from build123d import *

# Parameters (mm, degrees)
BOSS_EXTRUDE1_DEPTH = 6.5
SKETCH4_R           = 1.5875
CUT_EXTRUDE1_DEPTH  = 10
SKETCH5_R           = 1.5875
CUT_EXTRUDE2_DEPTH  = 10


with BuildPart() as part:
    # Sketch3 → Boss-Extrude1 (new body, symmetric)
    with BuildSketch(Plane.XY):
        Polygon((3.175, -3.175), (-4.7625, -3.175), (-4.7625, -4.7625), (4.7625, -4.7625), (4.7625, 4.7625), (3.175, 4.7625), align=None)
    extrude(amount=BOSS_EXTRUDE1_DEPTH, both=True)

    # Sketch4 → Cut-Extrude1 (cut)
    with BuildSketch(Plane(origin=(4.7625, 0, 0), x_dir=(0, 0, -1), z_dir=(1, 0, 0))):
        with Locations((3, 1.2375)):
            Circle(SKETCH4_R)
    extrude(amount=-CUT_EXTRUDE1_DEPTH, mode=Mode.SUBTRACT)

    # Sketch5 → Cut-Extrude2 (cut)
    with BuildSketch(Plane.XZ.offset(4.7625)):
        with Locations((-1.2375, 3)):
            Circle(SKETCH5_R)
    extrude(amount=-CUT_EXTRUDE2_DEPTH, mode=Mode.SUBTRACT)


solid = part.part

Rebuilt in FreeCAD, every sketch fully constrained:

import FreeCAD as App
import Part
import Sketcher
Q = App.Units.Quantity


def add_polygon(sketch, points):
    """Adds a closed chain of lines whose ends are joined by coincident constraints."""
    first, n = sketch.GeometryCount, len(points)
    for a, b in zip(points, points[1:] + points[:1]):
        sketch.addGeometry(Part.LineSegment(App.Vector(*a, 0), App.Vector(*b, 0)), False)
    for i in range(n):
        sketch.addConstraint(Sketcher.Constraint("Coincident", first + i, 2, first + (i + 1) % n, 1))

doc = App.newDocument("Part")
body = doc.addObject("PartDesign::Body", "Body")

# Sketch on XY plane
sketch1 = doc.addObject("Sketcher::SketchObject", "Sketch")
body.addObject(sketch1)
sketch1.AttachmentSupport = (doc.XY_Plane, [""])
sketch1.MapMode = "FlatFace"
add_polygon(sketch1, [(3.2, -3.2), (-4.8, -3.2), (-4.8, -4.8), (4.8, -4.8), (4.8, 4.8), (3.2, 4.8)])  # lines 0-5
sketch1.addConstraint([
    Sketcher.Constraint("Horizontal", 0),
    Sketcher.Constraint("Vertical", 1),
    Sketcher.Constraint("Horizontal", 2),
    Sketcher.Constraint("Vertical", 3),
    Sketcher.Constraint("Horizontal", 4),
    Sketcher.Constraint("Vertical", 5),
    Sketcher.Constraint("Symmetric", 1, 2, 3, 2, -1, 1),
    Sketcher.Constraint("Equal", 4, 1),
    Sketcher.Constraint("Equal", 2, 3),
    Sketcher.Constraint("DistanceX", 0, 2, 0, 1, Q("0.3125 in")),
    Sketcher.Constraint("DistanceX", 2, 1, 2, 2, Q("0.375 in")),
])
pad1 = doc.addObject("PartDesign::Pad", "Pad")
body.addObject(pad1)
pad1.Profile = sketch1
pad1.Length = 13
pad1.Midplane = True

# Sketch on YZ plane
sketch2 = doc.addObject("Sketcher::SketchObject", "Sketch001")
body.addObject(sketch2)
sketch2.AttachmentSupport = (doc.YZ_Plane, [""])
sketch2.MapMode = "FlatFace"
sketch2.AttachmentOffset = App.Placement(App.Vector(0, 0, 0.1875 * 25.4), App.Rotation())
sketch2.addGeometry(Part.Circle(App.Vector(1.2, -3, 0), App.Vector(0, 0, 1), 1.6), False)
sketch2.addConstraint([
    Sketcher.Constraint("Diameter", 0, Q("0.125 in")),
    Sketcher.Constraint("DistanceX", -1, 1, 0, 3, 1.2375),
    Sketcher.Constraint("DistanceY", 0, 3, -1, 1, 3.0),
])
pocket1 = doc.addObject("PartDesign::Pocket", "Pocket")
body.addObject(pocket1)
pocket1.Profile = sketch2
pocket1.Length = 10

# Sketch on XZ plane
sketch3 = doc.addObject("Sketcher::SketchObject", "Sketch002")
body.addObject(sketch3)
sketch3.AttachmentSupport = (doc.XZ_Plane, [""])
sketch3.MapMode = "FlatFace"
sketch3.AttachmentOffset = App.Placement(App.Vector(0, 0, 0.1875 * 25.4), App.Rotation())
sketch3.addGeometry(Part.Circle(App.Vector(-1.2, 3, 0), App.Vector(0, 0, 1), 1.6), False)
sketch3.addConstraint([
    Sketcher.Constraint("Diameter", 0, Q("0.125 in")),
    Sketcher.Constraint("DistanceX", 0, 3, -1, 1, 1.2375),
    Sketcher.Constraint("DistanceY", -1, 1, 0, 3, 3.0),
])
pocket2 = doc.addObject("PartDesign::Pocket", "Pocket001")
body.addObject(pocket2)
pocket2.Profile = sketch3
pocket2.Length = 10

doc.recompute()
